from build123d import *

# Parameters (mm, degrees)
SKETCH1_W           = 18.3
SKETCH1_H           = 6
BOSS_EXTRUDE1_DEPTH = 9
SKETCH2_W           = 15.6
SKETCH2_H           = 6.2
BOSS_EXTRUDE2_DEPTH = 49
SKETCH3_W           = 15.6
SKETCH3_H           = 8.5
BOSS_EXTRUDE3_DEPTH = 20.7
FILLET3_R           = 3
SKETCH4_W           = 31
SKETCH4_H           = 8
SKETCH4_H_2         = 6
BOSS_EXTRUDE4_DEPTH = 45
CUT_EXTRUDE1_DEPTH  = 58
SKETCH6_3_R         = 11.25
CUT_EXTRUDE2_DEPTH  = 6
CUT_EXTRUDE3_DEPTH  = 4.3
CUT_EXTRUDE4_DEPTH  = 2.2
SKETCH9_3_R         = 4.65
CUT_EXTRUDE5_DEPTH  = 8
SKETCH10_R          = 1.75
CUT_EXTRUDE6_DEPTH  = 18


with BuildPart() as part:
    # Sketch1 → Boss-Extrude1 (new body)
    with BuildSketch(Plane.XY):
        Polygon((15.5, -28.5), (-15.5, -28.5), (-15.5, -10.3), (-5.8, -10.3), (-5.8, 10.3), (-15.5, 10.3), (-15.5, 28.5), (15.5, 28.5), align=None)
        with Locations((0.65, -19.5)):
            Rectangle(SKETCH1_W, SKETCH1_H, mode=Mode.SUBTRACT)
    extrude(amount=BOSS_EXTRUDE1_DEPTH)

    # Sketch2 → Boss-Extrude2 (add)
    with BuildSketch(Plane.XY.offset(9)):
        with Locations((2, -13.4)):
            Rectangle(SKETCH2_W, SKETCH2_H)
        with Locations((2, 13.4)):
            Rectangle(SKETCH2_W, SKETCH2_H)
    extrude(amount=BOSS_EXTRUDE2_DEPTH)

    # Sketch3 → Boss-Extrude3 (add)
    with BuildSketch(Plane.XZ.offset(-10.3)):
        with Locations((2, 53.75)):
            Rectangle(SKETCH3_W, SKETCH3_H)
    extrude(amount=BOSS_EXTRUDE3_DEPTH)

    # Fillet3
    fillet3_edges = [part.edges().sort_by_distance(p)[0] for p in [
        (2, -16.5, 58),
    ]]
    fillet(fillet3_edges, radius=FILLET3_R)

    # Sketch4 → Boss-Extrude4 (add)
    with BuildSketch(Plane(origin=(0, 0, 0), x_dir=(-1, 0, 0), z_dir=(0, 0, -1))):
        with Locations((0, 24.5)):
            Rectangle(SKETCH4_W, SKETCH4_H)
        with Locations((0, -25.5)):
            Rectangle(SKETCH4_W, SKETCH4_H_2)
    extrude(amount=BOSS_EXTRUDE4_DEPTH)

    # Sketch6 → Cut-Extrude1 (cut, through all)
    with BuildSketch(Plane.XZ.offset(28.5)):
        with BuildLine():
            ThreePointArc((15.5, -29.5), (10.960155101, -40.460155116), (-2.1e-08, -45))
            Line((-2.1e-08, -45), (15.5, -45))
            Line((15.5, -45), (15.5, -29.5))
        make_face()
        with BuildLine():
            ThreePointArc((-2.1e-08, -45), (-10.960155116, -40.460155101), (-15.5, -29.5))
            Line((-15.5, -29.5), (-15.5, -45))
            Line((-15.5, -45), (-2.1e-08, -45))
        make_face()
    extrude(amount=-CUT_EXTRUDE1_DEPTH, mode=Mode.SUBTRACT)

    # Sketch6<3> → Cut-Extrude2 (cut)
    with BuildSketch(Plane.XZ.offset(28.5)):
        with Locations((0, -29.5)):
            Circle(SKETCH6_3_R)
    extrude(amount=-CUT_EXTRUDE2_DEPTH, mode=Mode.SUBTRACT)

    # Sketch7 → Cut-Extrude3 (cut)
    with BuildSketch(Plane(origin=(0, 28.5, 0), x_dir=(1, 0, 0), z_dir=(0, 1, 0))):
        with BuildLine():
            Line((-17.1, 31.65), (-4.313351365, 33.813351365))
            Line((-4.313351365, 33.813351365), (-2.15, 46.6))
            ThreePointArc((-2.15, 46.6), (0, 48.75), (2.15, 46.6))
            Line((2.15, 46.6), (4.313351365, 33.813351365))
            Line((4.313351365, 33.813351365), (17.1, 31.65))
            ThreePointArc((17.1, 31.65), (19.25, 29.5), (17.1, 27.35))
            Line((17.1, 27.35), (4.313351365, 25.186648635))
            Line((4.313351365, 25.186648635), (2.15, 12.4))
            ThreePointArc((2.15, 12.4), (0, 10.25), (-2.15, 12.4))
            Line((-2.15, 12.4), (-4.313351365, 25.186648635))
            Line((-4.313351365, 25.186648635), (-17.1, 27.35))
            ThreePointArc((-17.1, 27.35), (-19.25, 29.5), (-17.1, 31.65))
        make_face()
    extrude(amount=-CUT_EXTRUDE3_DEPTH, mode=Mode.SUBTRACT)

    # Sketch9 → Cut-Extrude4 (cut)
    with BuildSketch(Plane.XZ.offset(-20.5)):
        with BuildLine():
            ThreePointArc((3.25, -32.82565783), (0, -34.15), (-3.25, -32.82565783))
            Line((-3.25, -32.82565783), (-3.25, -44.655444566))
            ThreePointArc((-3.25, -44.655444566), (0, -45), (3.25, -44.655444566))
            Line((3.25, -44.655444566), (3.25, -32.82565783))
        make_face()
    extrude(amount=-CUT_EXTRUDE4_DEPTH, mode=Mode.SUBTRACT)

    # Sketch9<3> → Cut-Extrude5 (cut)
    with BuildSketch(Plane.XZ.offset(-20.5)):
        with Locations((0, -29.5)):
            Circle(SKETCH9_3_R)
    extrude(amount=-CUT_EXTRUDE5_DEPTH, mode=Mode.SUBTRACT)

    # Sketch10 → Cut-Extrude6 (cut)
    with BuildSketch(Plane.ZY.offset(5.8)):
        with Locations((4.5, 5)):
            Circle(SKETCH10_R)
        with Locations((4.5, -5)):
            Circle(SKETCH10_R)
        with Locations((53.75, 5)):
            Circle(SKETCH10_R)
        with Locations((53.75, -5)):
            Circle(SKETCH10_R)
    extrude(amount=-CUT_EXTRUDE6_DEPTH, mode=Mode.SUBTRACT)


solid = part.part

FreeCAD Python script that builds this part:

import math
import FreeCAD as App
import Part
import Sketcher
from FreeCAD import Vector
Q = App.Units.Quantity


def edges_at(feature, points):
    """Names of the edges that pass closest to the given points."""
    edges = feature.Shape.Edges
    near = lambda p: min(range(len(edges)), key=lambda i: edges[i].distToShape(Part.Vertex(*p))[0])
    return sorted({f"Edge{near(p) + 1}" for p in points})

doc = App.newDocument("Part")
body = doc.addObject("PartDesign::Body", "Body")

sketch1 = body.newObject("Sketcher::SketchObject", "Sketch")
sketch1.AttachmentSupport = (doc.getObject("XY_Plane"), [""])
sketch1.MapMode = "FlatFace"
sketch1.addGeometry([
    Part.LineSegment(Vector(-16, -28, 0), Vector(16, -28, 0)),
    Part.LineSegment(Vector(16, -28, 0), Vector(16, 28, 0)),
    Part.LineSegment(Vector(16, 28, 0), Vector(-16, 28, 0)),
    Part.LineSegment(Vector(-16, 28, 0), Vector(-16, 10, 0)),
    Part.LineSegment(Vector(-16, 10, 0), Vector(-6, 10, 0)),
    Part.LineSegment(Vector(-6, 10, 0), Vector(-6, -10, 0)),
    Part.LineSegment(Vector(-6, -10, 0), Vector(-16, -10, 0)),
    Part.LineSegment(Vector(-16, -10, 0), Vector(-16, -28, 0)),
    Part.LineSegment(Vector(-8, -22, 0), Vector(-8, -16, 0)),
    Part.LineSegment(Vector(-8, -16, 0), Vector(10, -16, 0)),
    Part.LineSegment(Vector(10, -16, 0), Vector(10, -22, 0)),
    Part.LineSegment(Vector(10, -22, 0), Vector(-8, -22, 0)),
], False)
sketch1.addConstraint([
    Sketcher.Constraint("Coincident", 0, 2, 1, 1),
    Sketcher.Constraint("Coincident", 1, 2, 2, 1),
    Sketcher.Constraint("Coincident", 2, 2, 3, 1),
    Sketcher.Constraint("Coincident", 3, 2, 4, 1),
    Sketcher.Constraint("Coincident", 4, 2, 5, 1),
    Sketcher.Constraint("Coincident", 5, 2, 6, 1),
    Sketcher.Constraint("Coincident", 6, 2, 7, 1),
    Sketcher.Constraint("Coincident", 7, 2, 0, 1),
    Sketcher.Constraint("Coincident", 8, 2, 9, 1),
    Sketcher.Constraint("Coincident", 9, 2, 10, 1),
    Sketcher.Constraint("Coincident", 10, 2, 11, 1),
    Sketcher.Constraint("Coincident", 11, 2, 8, 1),
    Sketcher.Constraint("Horizontal", 0),
    Sketcher.Constraint("Vertical", 1),
    Sketcher.Constraint("Horizontal", 2),
    Sketcher.Constraint("Vertical", 3),
    Sketcher.Constraint("Horizontal", 4),
    Sketcher.Constraint("Vertical", 5),
    Sketcher.Constraint("Horizontal", 6),
    Sketcher.Constraint("Vertical", 7),
    Sketcher.Constraint("Vertical", 8),
    Sketcher.Constraint("Horizontal", 9),
    Sketcher.Constraint("Vertical", 10),
    Sketcher.Constraint("Horizontal", 11),
    Sketcher.Constraint("Symmetric", 0, 2, 2, 2, -1, 1),
    Sketcher.Constraint("Symmetric", 3, 2, 6, 2, -1),
    Sketcher.Constraint("DistanceX", 0, 1, 0, 2, Q("31 mm")),
    Sketcher.Constraint("DistanceY", 1, 1, 1, 2, Q("57 mm")),
    Sketcher.Constraint("DistanceY", 8, 1, 8, 2, Q("6 mm")),
    Sketcher.Constraint("DistanceX", 4, 1, 4, 2, Q("9.7 mm")),
    Sketcher.Constraint("DistanceX", 9, 1, 9, 2, Q("18.3 mm")),
    Sketcher.Constraint("DistanceY", 3, 2, 3, 1, Q("18.2 mm")),
    Sketcher.Constraint("DistanceX", 6, 2, 8, 2, Q("7 mm")),
    Sketcher.Constraint("DistanceY", 7, 2, 8, 2, Q("12 mm")),
])
pad1 = body.newObject("PartDesign::Pad", "Pad")
pad1.Profile = sketch1
pad1.Length = 9

sketch2 = body.newObject("Sketcher::SketchObject", "Sketch001")
sketch2.AttachmentSupport = (doc.getObject("XY_Plane"), [""])
sketch2.MapMode = "FlatFace"
sketch2.AttachmentOffset = App.Placement(Vector(0, 0, 9), App.Rotation())
sketch2.addGeometry([
    Part.LineSegment(Vector(-6, -10, 0), Vector(-6, -16, 0)),
    Part.LineSegment(Vector(-6, -16, 0), Vector(10, -16, 0)),
    Part.LineSegment(Vector(10, -16, 0), Vector(10, -10, 0)),
    Part.LineSegment(Vector(10, -10, 0), Vector(-6, -10, 0)),
    Part.LineSegment(Vector(-6, 16, 0), Vector(-6, 10, 0)),
    Part.LineSegment(Vector(-6, 10, 0), Vector(10, 10, 0)),
    Part.LineSegment(Vector(10, 10, 0), Vector(10, 16, 0)),
    Part.LineSegment(Vector(10, 16, 0), Vector(-6, 16, 0)),
], False)
sketch2.addConstraint([
    Sketcher.Constraint("Coincident", 0, 2, 1, 1),
    Sketcher.Constraint("Coincident", 1, 2, 2, 1),
    Sketcher.Constraint("Coincident", 2, 2, 3, 1),
    Sketcher.Constraint("Coincident", 3, 2, 0, 1),
    Sketcher.Constraint("Coincident", 4, 2, 5, 1),
    Sketcher.Constraint("Coincident", 5, 2, 6, 1),
    Sketcher.Constraint("Coincident", 6, 2, 7, 1),
    Sketcher.Constraint("Coincident", 7, 2, 4, 1),
    Sketcher.Constraint("Vertical", 0),
    Sketcher.Constraint("Horizontal", 1),
    Sketcher.Constraint("Vertical", 2),
    Sketcher.Constraint("Horizontal", 3),
    Sketcher.Constraint("Vertical", 4),
    Sketcher.Constraint("Horizontal", 5),
    Sketcher.Constraint("Vertical", 6),
    Sketcher.Constraint("Horizontal", 7),
    Sketcher.Constraint("Symmetric", 3, 2, 4, 2, -1),
    Sketcher.Constraint("Symmetric", 1, 2, 6, 2, -1),
    Sketcher.Constraint("DistanceX", 1, 1, 1, 2, Q("15.6 mm")),
    Sketcher.Constraint("DistanceY", 0, 2, 0, 1, Q("6.2 mm")),
    Sketcher.Constraint("DistanceY", 1, 2, 6, 2, Q("33 mm")),
    Sketcher.Constraint("DistanceX", 0, 2, -1, 1, Q("5.8 mm")),
])
pad2 = body.newObject("PartDesign::Pad", "Pad001")
pad2.Profile = sketch2
pad2.Length = 49

sketch3 = body.newObject("Sketcher::SketchObject", "Sketch002")
sketch3.AttachmentSupport = (doc.getObject("XZ_Plane"), [""])
sketch3.MapMode = "FlatFace"
sketch3.AttachmentOffset = App.Placement(Vector(0, 0, -10.3), App.Rotation())
sketch3.addGeometry([
    Part.LineSegment(Vector(-6, 58, 0), Vector(-6, 50, 0)),
    Part.LineSegment(Vector(-6, 50, 0), Vector(10, 50, 0)),
    Part.LineSegment(Vector(10, 50, 0), Vector(10, 58, 0)),
    Part.LineSegment(Vector(10, 58, 0), Vector(-6, 58, 0)),
], False)
sketch3.addConstraint([
    Sketcher.Constraint("Coincident", 0, 2, 1, 1),
    Sketcher.Constraint("Coincident", 1, 2, 2, 1),
    Sketcher.Constraint("Coincident", 2, 2, 3, 1),
    Sketcher.Constraint("Coincident", 3, 2, 0, 1),
    Sketcher.Constraint("Vertical", 0),
    Sketcher.Constraint("Horizontal", 1),
    Sketcher.Constraint("Vertical", 2),
    Sketcher.Constraint("Horizontal", 3),
    Sketcher.Constraint("DistanceX", 1, 1, 1, 2, Q("15.6 mm")),
    Sketcher.Constraint("DistanceY", 0, 2, 0, 1, Q("8.5 mm")),
    Sketcher.Constraint("DistanceY", -1, 1, 2, 2, Q("58 mm")),
    Sketcher.Constraint("DistanceX", 0, 2, -1, 1, Q("5.8 mm")),
])
pad3 = body.newObject("PartDesign::Pad", "Pad002")
pad3.Profile = sketch3
pad3.Length = 20.7
doc.recompute()

fillet = body.newObject("PartDesign::Fillet", "Fillet")
fillet.Base = (pad3, edges_at(pad3, [(2, -16.5, 58)]))
fillet.Radius = 3

sketch4 = body.newObject("Sketcher::SketchObject", "Sketch003")
sketch4.AttachmentSupport = (doc.getObject("XY_Plane"), [""])
sketch4.MapMode = "FlatFace"
sketch4.addGeometry([
    Part.LineSegment(Vector(16, 28, 0), Vector(16, 20, 0)),
    Part.LineSegment(Vector(16, 20, 0), Vector(-16, 20, 0)),
    Part.LineSegment(Vector(-16, 20, 0), Vector(-16, 28, 0)),
    Part.LineSegment(Vector(-16, 28, 0), Vector(16, 28, 0)),
    Part.LineSegment(Vector(16, -22, 0), Vector(16, -28, 0)),
    Part.LineSegment(Vector(16, -28, 0), Vector(-16, -28, 0)),
    Part.LineSegment(Vector(-16, -28, 0), Vector(-16, -22, 0)),
    Part.LineSegment(Vector(-16, -22, 0), Vector(16, -22, 0)),
], False)
sketch4.addConstraint([
    Sketcher.Constraint("Coincident", 0, 2, 1, 1),
    Sketcher.Constraint("Coincident", 1, 2, 2, 1),
    Sketcher.Constraint("Coincident", 2, 2, 3, 1),
    Sketcher.Constraint("Coincident", 3, 2, 0, 1),
    Sketcher.Constraint("Coincident", 4, 2, 5, 1),
    Sketcher.Constraint("Coincident", 5, 2, 6, 1),
    Sketcher.Constraint("Coincident", 6, 2, 7, 1),
    Sketcher.Constraint("Coincident", 7, 2, 4, 1),
    Sketcher.Constraint("Vertical", 0),
    Sketcher.Constraint("Horizontal", 1),
    Sketcher.Constraint("Vertical", 2),
    Sketcher.Constraint("Horizontal", 3),
    Sketcher.Constraint("Vertical", 4),
    Sketcher.Constraint("Horizontal", 5),
    Sketcher.Constraint("Vertical", 6),
    Sketcher.Constraint("Horizontal", 7),
    Sketcher.Constraint("Symmetric", 2, 2, 4, 2, -1, 1),
    Sketcher.Constraint("Vertical", 3, 2, 4, 2),
    Sketcher.Constraint("Vertical", 2, 2, 5, 2),
    Sketcher.Constraint("DistanceX", 1, 2, 1, 1, Q("31 mm")),
    Sketcher.Constraint("DistanceY", 0, 2, 0, 1, Q("8 mm")),
    Sketcher.Constraint("DistanceY", 4, 2, 4, 1, Q("6 mm")),
    Sketcher.Constraint("DistanceY", 4, 2, 0, 2, Q("49 mm")),
])
pad4 = body.newObject("PartDesign::Pad", "Pad003")
pad4.Profile = sketch4
pad4.Length = 45
pad4.Reversed = True

sketch5 = body.newObject("Sketcher::SketchObject", "Sketch004")
sketch5.AttachmentSupport = (doc.getObject("XZ_Plane"), [""])
sketch5.MapMode = "FlatFace"
sketch5.AttachmentOffset = App.Placement(Vector(0, 0, 28.5), App.Rotation())
sketch5.addGeometry([
    Part.ArcOfCircle(Part.Circle(Vector(0, -30, 0), Vector(0, 0, 1), 16), math.radians(-90), math.radians(0)),
    Part.LineSegment(Vector(0, -45, 0), Vector(16, -45, 0)),
    Part.LineSegment(Vector(16, -45, 0), Vector(16, -30, 0)),
    Part.ArcOfCircle(Part.Circle(Vector(0, -30, 0), Vector(0, 0, 1), 16), math.radians(180), math.radians(270)),
    Part.LineSegment(Vector(-16, -30, 0), Vector(-16, -45, 0)),
    Part.LineSegment(Vector(-16, -45, 0), Vector(0, -45, 0)),
], False)
sketch5.addConstraint([
    Sketcher.Constraint("Tangent", 0, 1, 1, 1),
    Sketcher.Constraint("Coincident", 1, 2, 2, 1),
    Sketcher.Constraint("Tangent", 2, 2, 0, 2),
    Sketcher.Constraint("Tangent", 3, 1, 4, 1),
    Sketcher.Constraint("Coincident", 4, 2, 5, 1),
    Sketcher.Constraint("Tangent", 5, 2, 3, 2),
    Sketcher.Constraint("Horizontal", 1),
    Sketcher.Constraint("Vertical", 2),
    Sketcher.Constraint("Vertical", 4),
    Sketcher.Constraint("Horizontal", 5),
    Sketcher.Constraint("Coincident", 3, 3, 0, 3),
    Sketcher.Constraint("Equal", 0, 3),
    Sketcher.Constraint("PointOnObject", 0, 3, -2),
    Sketcher.Constraint("Radius", 0, Q("15.5 mm")),
    Sketcher.Constraint("DistanceY", 0, 1, -1, 1, Q("45 mm")),
])
pocket1 = body.newObject("PartDesign::Pocket", "Pocket")
pocket1.Profile = sketch5
pocket1.Type = "ThroughAll"

sketch6 = body.newObject("Sketcher::SketchObject", "Sketch005")
sketch6.AttachmentSupport = (doc.getObject("XZ_Plane"), [""])
sketch6.MapMode = "FlatFace"
sketch6.AttachmentOffset = App.Placement(Vector(0, 0, 28.5), App.Rotation())
sketch6.addGeometry(Part.Circle(Vector(0, -30, 0), Vector(0, 0, 1), 11), False)
sketch6.addConstraint([
    Sketcher.Constraint("PointOnObject", 0, 3, -2),
    Sketcher.Constraint("Diameter", 0, Q("22.5 mm")),
    Sketcher.Constraint("DistanceY", 0, 3, -1, 1, Q("29.5 mm")),
])
pocket2 = body.newObject("PartDesign::Pocket", "Pocket001")
pocket2.Profile = sketch6
pocket2.Length = 6

sketch7 = body.newObject("Sketcher::SketchObject", "Sketch006")
sketch7.AttachmentSupport = (doc.getObject("XZ_Plane"), [""])
sketch7.MapMode = "FlatFace"
sketch7.AttachmentOffset = App.Placement(Vector(0, 0, -28.5), App.Rotation())
sketch7.addGeometry([
    Part.LineSegment(Vector(-4.3, -33.8, 0), Vector(-17.1, -31.6, 0)),
    Part.ArcOfCircle(Part.Circle(Vector(-17.1, -29.5, 0), Vector(0, 0, 1), 2.1), math.radians(90), math.radians(270)),
    Part.LineSegment(Vector(-17.1, -27.4, 0), Vector(-4.3, -25.2, 0)),
    Part.LineSegment(Vector(-4.3, -25.2, 0), Vector(-2.1, -12.4, 0)),
    Part.ArcOfCircle(Part.Circle(Vector(0, -12.4, 0), Vector(0, 0, 1), 2.1), math.radians(0), math.radians(180)),
    Part.LineSegment(Vector(2.1, -12.4, 0), Vector(4.3, -25.2, 0)),
    Part.LineSegment(Vector(4.3, -25.2, 0), Vector(17.1, -27.4, 0)),
    Part.ArcOfCircle(Part.Circle(Vector(17.1, -29.5, 0), Vector(0, 0, 1), 2.1), math.radians(-90), math.radians(90)),
    Part.LineSegment(Vector(17.1, -31.6, 0), Vector(4.3, -33.8, 0)),
    Part.LineSegment(Vector(4.3, -33.8, 0), Vector(2.1, -46.6, 0)),
    Part.ArcOfCircle(Part.Circle(Vector(0, -46.6, 0), Vector(0, 0, 1), 2.1), math.radians(180), math.radians(360)),
    Part.LineSegment(Vector(-2.1, -46.6, 0), Vector(-4.3, -33.8, 0)),
], False)
sketch7.addConstraint([
    Sketcher.Constraint("Coincident", 0, 2, 1, 2),
    Sketcher.Constraint("Coincident", 1, 1, 2, 1),
    Sketcher.Constraint("Coincident", 2, 2, 3, 1),
    Sketcher.Constraint("Coincident", 3, 2, 4, 2),
    Sketcher.Constraint("Coincident", 4, 1, 5, 1),
    Sketcher.Constraint("Coincident", 5, 2, 6, 1),
    Sketcher.Constraint("Coincident", 6, 2, 7, 2),
    Sketcher.Constraint("Coincident", 7, 1, 8, 1),
    Sketcher.Constraint("Coincident", 8, 2, 9, 1),
    Sketcher.Constraint("Coincident", 9, 2, 10, 2),
    Sketcher.Constraint("Coincident", 10, 1, 11, 1),
    Sketcher.Constraint("Coincident", 11, 2, 0, 1),
    Sketcher.Constraint("Equal", 1, 4),
    Sketcher.Constraint("Equal", 4, 7),
    Sketcher.Constraint("Equal", 7, 10),
    Sketcher.Constraint("Symmetric", 1, 3, 7, 3, -2),
    Sketcher.Constraint("Symmetric", 3, 2, 4, 1, -2),
    Sketcher.Constraint("Symmetric", 2, 2, 5, 2, -2),
    Sketcher.Constraint("Symmetric", 9, 2, 10, 1, -2),
    Sketcher.Constraint("Symmetric", 8, 2, 11, 2, -2),
    Sketcher.Constraint("Perpendicular", 0, 3),
    Sketcher.Constraint("Perpendicular", 2, 5),
    Sketcher.Constraint("Perpendicular", 3, 6),
    Sketcher.Constraint("Perpendicular", 5, 8),
    Sketcher.Constraint("Perpendicular", 6, 9),
    Sketcher.Constraint("Horizontal", 4, 3, 3, 2),
    Sketcher.Constraint("Horizontal", 10, 3, 9, 2),
    Sketcher.Constraint("Vertical", 1, 3, 0, 2),
    Sketcher.Constraint("Vertical", 0, 2, 1, 1),
    Sketcher.Constraint("Vertical", 5, 2, 8, 2),
    Sketcher.Constraint("Equal", 2, 3),
    Sketcher.Constraint("Radius", 1, Q("2.15 mm")),
    Sketcher.Constraint("DistanceX", 1, 3, -1, 1, Q("17.1 mm")),
    Sketcher.Constraint("DistanceY", 1, 3, -1, 1, Q("29.5 mm")),
    Sketcher.Constraint("DistanceX", 2, 2, -1, 1, Q("4.313351 mm")),
])
pocket3 = body.newObject("PartDesign::Pocket", "Pocket002")
pocket3.Profile = sketch7
pocket3.Length = 4.3
pocket3.Reversed = True

sketch8 = body.newObject("Sketcher::SketchObject", "Sketch007")
sketch8.AttachmentSupport = (doc.getObject("XZ_Plane"), [""])
sketch8.MapMode = "FlatFace"
sketch8.AttachmentOffset = App.Placement(Vector(0, 0, -20.5), App.Rotation())
sketch8.addGeometry([
    Part.ArcOfCircle(Part.Circle(Vector(0, -29.5, 0), Vector(0, 0, 1), 4.7), math.radians(-134), math.radians(-46)),
    Part.LineSegment(Vector(-3.2, -32.8, 0), Vector(-3.2, -44.7, 0)),
    Part.ArcOfCircle(Part.Circle(Vector(0, -29.5, 0), Vector(0, 0, 1), 15.5), math.radians(-102), math.radians(-78)),
    Part.LineSegment(Vector(3.2, -44.7, 0), Vector(3.2, -32.8, 0)),
], False)
sketch8.addConstraint([
    Sketcher.Constraint("Coincident", 0, 1, 1, 1),
    Sketcher.Constraint("Coincident", 1, 2, 2, 1),
    Sketcher.Constraint("Coincident", 2, 2, 3, 1),
    Sketcher.Constraint("Coincident", 3, 2, 0, 2),
    Sketcher.Constraint("Vertical", 1),
    Sketcher.Constraint("Vertical", 3),
    Sketcher.Constraint("Coincident", 2, 3, 0, 3),
    Sketcher.Constraint("Symmetric", 1, 2, 2, 2, -2),
    Sketcher.Constraint("Radius", 2, Q("15.5 mm")),
    Sketcher.Constraint("Radius", 0, Q("4.65 mm")),
    Sketcher.Constraint("DistanceY", 0, 3, -1, 1, Q("29.5 mm")),
    Sketcher.Constraint("DistanceX", 1, 2, 2, 2, Q("6.5 mm")),
])
pocket4 = body.newObject("PartDesign::Pocket", "Pocket003")
pocket4.Profile = sketch8
pocket4.Length = 2.2

sketch9 = body.newObject("Sketcher::SketchObject", "Sketch008")
sketch9.AttachmentSupport = (doc.getObject("XZ_Plane"), [""])
sketch9.MapMode = "FlatFace"
sketch9.AttachmentOffset = App.Placement(Vector(0, 0, -20.5), App.Rotation())
sketch9.addGeometry(Part.Circle(Vector(0, -29.5, 0), Vector(0, 0, 1), 4.7), False)
sketch9.addConstraint([
    Sketcher.Constraint("PointOnObject", 0, 3, -2),
    Sketcher.Constraint("Diameter", 0, Q("9.3 mm")),
    Sketcher.Constraint("DistanceY", 0, 3, -1, 1, Q("29.5 mm")),
])
pocket5 = body.newObject("PartDesign::Pocket", "Pocket004")
pocket5.Profile = sketch9
pocket5.Length = 8

sketch10 = body.newObject("Sketcher::SketchObject", "Sketch009")
sketch10.AttachmentSupport = (doc.getObject("YZ_Plane"), [""])
sketch10.MapMode = "FlatFace"
sketch10.AttachmentOffset = App.Placement(Vector(0, 0, -5.8), App.Rotation())
sketch10.addGeometry([
    Part.Circle(Vector(5, 4.5, 0), Vector(0, 0, 1), 1.8),
    Part.Circle(Vector(-5, 4.5, 0), Vector(0, 0, 1), 1.8),
    Part.Circle(Vector(5, 53.8, 0), Vector(0, 0, 1), 1.8),
    Part.Circle(Vector(-5, 53.8, 0), Vector(0, 0, 1), 1.8),
], False)
sketch10.addConstraint([
    Sketcher.Constraint("Equal", 0, 1),
    Sketcher.Constraint("Equal", 1, 2),
    Sketcher.Constraint("Equal", 2, 3),
    Sketcher.Constraint("Symmetric", 0, 3, 1, 3, -2),
    Sketcher.Constraint("Symmetric", 2, 3, 3, 3, -2),
    Sketcher.Constraint("Vertical", 0, 3, 2, 3),
    Sketcher.Constraint("Diameter", 0, Q("3.5 mm")),
    Sketcher.Constraint("DistanceX", -1, 1, 0, 3, Q("5 mm")),
    Sketcher.Constraint("DistanceY", -1, 1, 0, 3, Q("4.5 mm")),
    Sketcher.Constraint("DistanceY", -1, 1, 2, 3, Q("53.75 mm")),
])
pocket6 = body.newObject("PartDesign::Pocket", "Pocket005")
pocket6.Profile = sketch10
pocket6.Length = 18
pocket6.Reversed = True

doc.recompute()
